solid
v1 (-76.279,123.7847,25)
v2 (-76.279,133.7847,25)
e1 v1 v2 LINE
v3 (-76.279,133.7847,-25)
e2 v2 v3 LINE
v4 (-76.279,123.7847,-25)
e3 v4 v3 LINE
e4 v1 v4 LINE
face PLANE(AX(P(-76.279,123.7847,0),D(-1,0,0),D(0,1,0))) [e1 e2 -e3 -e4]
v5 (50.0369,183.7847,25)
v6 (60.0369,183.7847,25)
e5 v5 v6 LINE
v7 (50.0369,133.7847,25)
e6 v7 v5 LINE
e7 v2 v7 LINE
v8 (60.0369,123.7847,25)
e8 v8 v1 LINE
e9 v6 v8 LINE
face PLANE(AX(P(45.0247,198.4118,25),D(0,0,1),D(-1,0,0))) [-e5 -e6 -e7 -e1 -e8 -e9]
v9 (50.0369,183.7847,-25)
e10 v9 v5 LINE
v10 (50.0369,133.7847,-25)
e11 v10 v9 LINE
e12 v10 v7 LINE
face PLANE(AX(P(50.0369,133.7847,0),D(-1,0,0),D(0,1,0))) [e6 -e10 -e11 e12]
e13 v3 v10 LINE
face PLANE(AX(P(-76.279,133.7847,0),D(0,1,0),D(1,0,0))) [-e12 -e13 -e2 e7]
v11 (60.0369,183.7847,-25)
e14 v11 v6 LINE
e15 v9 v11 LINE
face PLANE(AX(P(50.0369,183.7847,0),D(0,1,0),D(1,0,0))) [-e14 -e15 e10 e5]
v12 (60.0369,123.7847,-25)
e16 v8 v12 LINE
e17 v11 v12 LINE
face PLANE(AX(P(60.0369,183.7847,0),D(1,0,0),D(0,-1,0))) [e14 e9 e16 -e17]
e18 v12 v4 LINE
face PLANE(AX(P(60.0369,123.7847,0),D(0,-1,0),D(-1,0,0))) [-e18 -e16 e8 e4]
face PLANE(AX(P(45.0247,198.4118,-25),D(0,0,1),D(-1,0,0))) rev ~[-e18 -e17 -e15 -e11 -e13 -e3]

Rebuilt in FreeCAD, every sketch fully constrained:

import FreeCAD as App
import Part
import Sketcher

doc = App.newDocument("Part")
body = doc.addObject("PartDesign::Body", "Body")

# Sketch on XY plane
sketch1 = body.newObject("Sketcher::SketchObject", "Sketch")
sketch1.AttachmentSupport = (doc.getObject("XY_Plane"), [""])
sketch1.MapMode = "FlatFace"
sketch1.addGeometry(Part.LineSegment(App.Vector(60, 124, 0), App.Vector(60, 184, 0)), False)
sketch1.addGeometry(Part.LineSegment(App.Vector(60, 184, 0), App.Vector(50, 184, 0)), False)
sketch1.addGeometry(Part.LineSegment(App.Vector(50, 184, 0), App.Vector(50, 134, 0)), False)
sketch1.addGeometry(Part.LineSegment(App.Vector(50, 134, 0), App.Vector(-76, 134, 0)), False)
sketch1.addGeometry(Part.LineSegment(App.Vector(-76, 134, 0), App.Vector(-76, 124, 0)), False)
sketch1.addGeometry(Part.LineSegment(App.Vector(-76, 124, 0), App.Vector(60, 124, 0)), False)
sketch1.addConstraint(Sketcher.Constraint("Coincident", 0, 2, 1, 1))
sketch1.addConstraint(Sketcher.Constraint("Coincident", 1, 2, 2, 1))
sketch1.addConstraint(Sketcher.Constraint("Coincident", 2, 2, 3, 1))
sketch1.addConstraint(Sketcher.Constraint("Coincident", 3, 2, 4, 1))
sketch1.addConstraint(Sketcher.Constraint("Coincident", 4, 2, 5, 1))
sketch1.addConstraint(Sketcher.Constraint("Coincident", 5, 2, 0, 1))
sketch1.addConstraint(Sketcher.Constraint("Vertical", 0))
sketch1.addConstraint(Sketcher.Constraint("Horizontal", 1))
sketch1.addConstraint(Sketcher.Constraint("Vertical", 2))
sketch1.addConstraint(Sketcher.Constraint("Horizontal", 3))
sketch1.addConstraint(Sketcher.Constraint("Vertical", 4))
sketch1.addConstraint(Sketcher.Constraint("Horizontal", 5))
sketch1.addConstraint(Sketcher.Constraint("Equal", 1, 4))
sketch1.addConstraint(Sketcher.Constraint("DistanceX", 1, 2, 1, 1, 10.0))
sketch1.addConstraint(Sketcher.Constraint("DistanceY", 0, 1, 0, 2, 60.0))
sketch1.addConstraint(Sketcher.Constraint("DistanceX", 3, 2, 3, 1, 126.316))
sketch1.addConstraint(Sketcher.Constraint("DistanceX", -1, 1, 0, 2, 60.037))
sketch1.addConstraint(Sketcher.Constraint("DistanceY", -1, 1, 0, 2, 183.7847))
pad1 = body.newObject("PartDesign::Pad", "Pad")
pad1.Profile = sketch1
pad1.Length = 50
pad1.Midplane = True

doc.recompute()
